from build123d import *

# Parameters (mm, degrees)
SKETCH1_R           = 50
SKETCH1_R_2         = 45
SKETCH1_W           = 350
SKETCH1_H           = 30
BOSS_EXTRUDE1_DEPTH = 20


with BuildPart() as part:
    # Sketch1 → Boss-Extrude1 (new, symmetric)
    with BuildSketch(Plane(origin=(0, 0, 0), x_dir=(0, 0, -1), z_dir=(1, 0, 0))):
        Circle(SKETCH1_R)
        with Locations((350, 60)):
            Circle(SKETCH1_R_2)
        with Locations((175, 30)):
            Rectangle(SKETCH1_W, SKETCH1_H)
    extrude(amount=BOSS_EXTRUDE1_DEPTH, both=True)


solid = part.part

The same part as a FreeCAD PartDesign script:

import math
import FreeCAD as App
import Part
import Sketcher
Q = App.Units.Quantity

doc = App.newDocument("Part")
params = doc.addObject("Spreadsheet::Sheet", "Params")
for row, (alias, value) in enumerate([
    ("sketch1_radius", "50 mm"),
    ("sketch1_radius2", "45 mm"),
    ("pad1_length", "40 mm"),
], start=1):
    params.set(f"A{row}", alias)
    params.set(f"B{row}", "=" + value)
    params.setAlias(f"B{row}", alias)

body = doc.addObject("PartDesign::Body", "Body")

# Sketch on YZ plane
sketch1 = body.newObject("Sketcher::SketchObject", "Sketch")
sketch1.AttachmentSupport = (doc.getObject("YZ_Plane"), [""])
sketch1.MapMode = "FlatFace"
sketch1.addGeometry(Part.ArcOfCircle(Part.Circle(App.Vector(0, 0, 0), App.Vector(0, 0, 1), 50), math.radians(-26), math.radians(287)), False)
sketch1.addGeometry(Part.LineSegment(App.Vector(15, -48, 0), App.Vector(15, -350, 0)), False)
sketch1.addGeometry(Part.ArcOfCircle(Part.Circle(App.Vector(60, -350, 0), App.Vector(0, 0, 1), 45), math.radians(180), math.radians(469)), False)
sketch1.addGeometry(Part.LineSegment(App.Vector(45, -308, 0), App.Vector(45, -22, 0)), False)
sketch1.addConstraint(Sketcher.Constraint("Coincident", 0, 2, 1, 1))
sketch1.addConstraint(Sketcher.Constraint("Tangent", 1, 2, 2, 1))
sketch1.addConstraint(Sketcher.Constraint("Coincident", 2, 2, 3, 1))
sketch1.addConstraint(Sketcher.Constraint("Coincident", 3, 2, 0, 1))
sketch1.addConstraint(Sketcher.Constraint("Vertical", 1))
sketch1.addConstraint(Sketcher.Constraint("Vertical", 3))
sketch1.addConstraint(Sketcher.Constraint("Coincident", 0, 3, -1, 1))
sketch1.addConstraint(Sketcher.Constraint("Radius", 0, Q("50 mm")))
sketch1.addConstraint(Sketcher.Constraint("Radius", 2, Q("45 mm")))
sketch1.addConstraint(Sketcher.Constraint("DistanceX", -1, 1, 2, 3, Q("60 mm")))
sketch1.addConstraint(Sketcher.Constraint("DistanceY", 2, 3, -1, 1, Q("350 mm")))
sketch1.addConstraint(Sketcher.Constraint("DistanceX", -1, 1, 2, 2, Q("45 mm")))
sketch1.setExpression("Constraints[7]", "Params.sketch1_radius")
sketch1.setExpression("Constraints[8]", "Params.sketch1_radius2")
pad1 = body.newObject("PartDesign::Pad", "Pad")
pad1.Profile = sketch1
pad1.setExpression("Length", "Params.pad1_length")
pad1.Midplane = True

doc.recompute()
